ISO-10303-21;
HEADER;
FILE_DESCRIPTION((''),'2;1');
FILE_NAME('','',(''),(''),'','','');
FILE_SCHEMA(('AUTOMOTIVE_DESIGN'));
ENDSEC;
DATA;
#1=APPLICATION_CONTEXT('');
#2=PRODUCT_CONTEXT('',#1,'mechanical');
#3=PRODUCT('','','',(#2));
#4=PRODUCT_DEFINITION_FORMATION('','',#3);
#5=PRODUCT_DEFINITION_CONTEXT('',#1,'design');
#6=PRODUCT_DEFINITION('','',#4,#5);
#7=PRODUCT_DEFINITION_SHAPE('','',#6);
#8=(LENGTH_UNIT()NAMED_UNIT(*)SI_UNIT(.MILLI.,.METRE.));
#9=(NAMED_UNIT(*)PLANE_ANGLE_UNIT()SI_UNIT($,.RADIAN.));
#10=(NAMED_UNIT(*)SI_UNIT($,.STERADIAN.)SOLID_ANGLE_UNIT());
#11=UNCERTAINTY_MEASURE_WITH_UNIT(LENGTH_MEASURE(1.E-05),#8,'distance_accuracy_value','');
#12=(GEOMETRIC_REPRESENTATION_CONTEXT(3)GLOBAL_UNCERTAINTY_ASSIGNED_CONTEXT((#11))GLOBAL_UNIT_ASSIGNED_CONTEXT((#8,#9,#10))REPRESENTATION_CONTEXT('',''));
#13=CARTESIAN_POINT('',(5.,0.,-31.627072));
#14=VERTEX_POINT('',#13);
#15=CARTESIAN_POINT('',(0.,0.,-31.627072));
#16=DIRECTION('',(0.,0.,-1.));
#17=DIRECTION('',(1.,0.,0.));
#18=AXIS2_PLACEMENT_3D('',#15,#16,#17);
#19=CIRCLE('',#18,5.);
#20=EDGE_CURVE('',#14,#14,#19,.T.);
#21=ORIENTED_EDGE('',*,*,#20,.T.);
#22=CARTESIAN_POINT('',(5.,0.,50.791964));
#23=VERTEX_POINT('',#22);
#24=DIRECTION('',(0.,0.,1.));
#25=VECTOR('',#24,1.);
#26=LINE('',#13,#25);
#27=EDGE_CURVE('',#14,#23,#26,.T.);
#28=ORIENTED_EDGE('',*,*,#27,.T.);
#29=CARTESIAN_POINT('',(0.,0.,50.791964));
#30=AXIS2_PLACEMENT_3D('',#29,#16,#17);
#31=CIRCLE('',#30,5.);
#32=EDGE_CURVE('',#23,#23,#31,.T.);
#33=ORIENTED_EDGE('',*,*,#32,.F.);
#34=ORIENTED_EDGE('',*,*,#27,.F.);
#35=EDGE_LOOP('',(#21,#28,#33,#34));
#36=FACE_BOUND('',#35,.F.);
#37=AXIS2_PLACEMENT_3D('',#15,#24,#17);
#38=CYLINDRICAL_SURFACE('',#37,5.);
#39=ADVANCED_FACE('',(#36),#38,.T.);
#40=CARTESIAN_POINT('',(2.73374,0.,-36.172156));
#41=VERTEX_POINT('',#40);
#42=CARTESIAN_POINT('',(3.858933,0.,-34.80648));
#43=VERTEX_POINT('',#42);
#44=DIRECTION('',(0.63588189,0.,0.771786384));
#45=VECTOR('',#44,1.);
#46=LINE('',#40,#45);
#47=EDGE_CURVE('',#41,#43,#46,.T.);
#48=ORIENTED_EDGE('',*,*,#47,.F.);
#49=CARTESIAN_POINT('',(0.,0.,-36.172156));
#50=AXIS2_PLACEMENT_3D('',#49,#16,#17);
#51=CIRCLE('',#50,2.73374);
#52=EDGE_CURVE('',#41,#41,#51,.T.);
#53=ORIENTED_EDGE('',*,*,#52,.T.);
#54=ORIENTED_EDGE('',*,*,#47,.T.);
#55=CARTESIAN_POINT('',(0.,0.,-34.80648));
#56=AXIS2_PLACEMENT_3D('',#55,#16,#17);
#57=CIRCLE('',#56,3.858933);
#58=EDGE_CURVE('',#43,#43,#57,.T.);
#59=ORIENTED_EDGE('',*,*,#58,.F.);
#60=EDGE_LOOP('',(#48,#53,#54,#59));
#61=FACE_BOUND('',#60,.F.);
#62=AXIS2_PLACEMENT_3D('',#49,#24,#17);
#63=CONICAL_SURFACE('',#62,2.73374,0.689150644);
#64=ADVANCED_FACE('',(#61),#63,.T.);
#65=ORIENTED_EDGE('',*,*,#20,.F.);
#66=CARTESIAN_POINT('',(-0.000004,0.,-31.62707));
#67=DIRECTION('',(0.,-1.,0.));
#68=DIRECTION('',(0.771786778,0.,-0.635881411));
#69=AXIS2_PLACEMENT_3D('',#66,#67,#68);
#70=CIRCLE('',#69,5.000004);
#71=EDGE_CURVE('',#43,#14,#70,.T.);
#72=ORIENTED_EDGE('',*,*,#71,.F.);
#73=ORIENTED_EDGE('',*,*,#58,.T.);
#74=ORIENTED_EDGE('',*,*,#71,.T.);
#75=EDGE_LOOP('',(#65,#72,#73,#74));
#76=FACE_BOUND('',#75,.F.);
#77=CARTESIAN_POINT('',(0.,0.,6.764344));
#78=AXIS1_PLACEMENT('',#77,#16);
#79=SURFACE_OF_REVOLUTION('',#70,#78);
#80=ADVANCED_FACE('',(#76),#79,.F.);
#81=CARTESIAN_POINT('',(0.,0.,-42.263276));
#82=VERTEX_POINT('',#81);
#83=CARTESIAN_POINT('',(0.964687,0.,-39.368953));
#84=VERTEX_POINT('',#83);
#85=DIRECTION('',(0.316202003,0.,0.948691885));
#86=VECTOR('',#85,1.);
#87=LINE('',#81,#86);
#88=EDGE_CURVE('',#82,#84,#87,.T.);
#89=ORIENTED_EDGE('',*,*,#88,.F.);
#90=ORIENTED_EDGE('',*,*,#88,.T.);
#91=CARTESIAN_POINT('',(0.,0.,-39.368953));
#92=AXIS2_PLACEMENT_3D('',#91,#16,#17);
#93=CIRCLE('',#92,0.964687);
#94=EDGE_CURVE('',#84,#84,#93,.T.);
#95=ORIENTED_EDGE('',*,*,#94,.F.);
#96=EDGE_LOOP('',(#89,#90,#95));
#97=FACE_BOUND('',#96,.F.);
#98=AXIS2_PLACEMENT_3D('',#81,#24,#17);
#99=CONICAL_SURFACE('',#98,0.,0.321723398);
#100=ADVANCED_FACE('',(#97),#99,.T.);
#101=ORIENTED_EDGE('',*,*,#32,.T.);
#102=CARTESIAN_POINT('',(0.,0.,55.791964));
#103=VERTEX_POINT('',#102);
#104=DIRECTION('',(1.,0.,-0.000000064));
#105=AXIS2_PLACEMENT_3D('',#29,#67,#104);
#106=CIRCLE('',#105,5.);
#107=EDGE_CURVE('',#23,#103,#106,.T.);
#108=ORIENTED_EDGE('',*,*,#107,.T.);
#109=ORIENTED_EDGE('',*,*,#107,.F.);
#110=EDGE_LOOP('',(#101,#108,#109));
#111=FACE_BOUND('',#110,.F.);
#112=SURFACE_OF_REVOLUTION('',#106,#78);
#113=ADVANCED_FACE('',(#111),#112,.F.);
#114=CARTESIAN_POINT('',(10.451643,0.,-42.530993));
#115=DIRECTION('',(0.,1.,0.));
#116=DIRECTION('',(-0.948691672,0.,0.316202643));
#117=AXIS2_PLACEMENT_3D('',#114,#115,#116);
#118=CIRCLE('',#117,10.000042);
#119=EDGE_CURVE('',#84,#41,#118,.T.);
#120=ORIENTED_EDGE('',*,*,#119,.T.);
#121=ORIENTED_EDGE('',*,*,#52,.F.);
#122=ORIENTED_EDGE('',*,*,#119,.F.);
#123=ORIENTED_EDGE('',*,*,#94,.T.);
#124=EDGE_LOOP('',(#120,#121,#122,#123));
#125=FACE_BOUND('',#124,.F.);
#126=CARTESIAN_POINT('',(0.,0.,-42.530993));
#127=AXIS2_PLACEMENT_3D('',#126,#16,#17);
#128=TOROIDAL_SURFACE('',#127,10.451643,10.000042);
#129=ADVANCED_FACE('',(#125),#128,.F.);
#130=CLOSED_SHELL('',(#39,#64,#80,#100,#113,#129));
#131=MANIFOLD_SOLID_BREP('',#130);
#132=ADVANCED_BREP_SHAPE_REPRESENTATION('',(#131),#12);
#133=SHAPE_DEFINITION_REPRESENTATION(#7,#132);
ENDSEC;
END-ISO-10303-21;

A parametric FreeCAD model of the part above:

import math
import FreeCAD as App
import Part
import Sketcher
from FreeCAD import Vector
Q = App.Units.Quantity

doc = App.newDocument("Part")
body = doc.addObject("PartDesign::Body", "Body")

# Sketch on XZ plane
sketch1 = body.newObject("Sketcher::SketchObject", "Sketch")
sketch1.AttachmentSupport = (doc.getObject("XZ_Plane"), [""])
sketch1.MapMode = "FlatFace"
sketch1.addGeometry([
    Part.LineSegment(Vector(5, -31.6, 0), Vector(5, 50.8, 0)),  # 0
    Part.ArcOfCircle(Part.Circle(Vector(0, 50.8, 0), Vector(0, 0, 1), 5), math.radians(0), math.radians(90)),  # 1
    Part.LineSegment(Vector(0, 55.8, 0), Vector(0, -42.3, 0)),  # 2
    Part.LineSegment(Vector(0, -42.3, 0), Vector(1, -39.4, 0)),  # 3
    Part.ArcOfCircle(Part.Circle(Vector(10.5, -42.5, 0), Vector(0, 0, 1), 10), math.radians(141), math.radians(162)),  # 4
    Part.LineSegment(Vector(2.7, -36.2, 0), Vector(3.9, -34.8, 0)),  # 5
    Part.ArcOfCircle(Part.Circle(Vector(0, -31.6, 0), Vector(0, 0, 1), 5), math.radians(-39), math.radians(0)),  # 6
], False)
sketch1.addConstraint([
    Sketcher.Constraint("Tangent", 0, 2, 1, 1),
    Sketcher.Constraint("Coincident", 1, 2, 2, 1),
    Sketcher.Constraint("Coincident", 2, 2, 3, 1),
    Sketcher.Constraint("Tangent", 3, 2, 4, 2),
    Sketcher.Constraint("Tangent", 4, 1, 5, 1),
    Sketcher.Constraint("Tangent", 5, 2, 6, 1),
    Sketcher.Constraint("Tangent", 6, 2, 0, 1),
    Sketcher.Constraint("Vertical", 0),
    Sketcher.Constraint("Vertical", 2),
    Sketcher.Constraint("PointOnObject", 1, 3, -2),
    Sketcher.Constraint("PointOnObject", 1, 2, -2),
    Sketcher.Constraint("Radius", 1, Q("5 mm")),
    Sketcher.Constraint("Radius", 4, Q("10.000042 mm")),
    Sketcher.Constraint("Radius", 6, Q("5.000004 mm")),
    Sketcher.Constraint("Distance", 5, Q("1.7695 mm")),
    Sketcher.Constraint("DistanceY", 2, 2, 2, 1, Q("98.05524 mm")),
    Sketcher.Constraint("DistanceY", 0, 1, 0, 2, Q("82.419036 mm")),
    Sketcher.Constraint("DistanceY", 6, 3, -1, 1, Q("31.62707 mm")),
    Sketcher.Constraint("DistanceX", -1, 1, 4, 1, Q("2.73374 mm")),
])
revolution = body.newObject("PartDesign::Revolution", "Revolution")
revolution.Profile = sketch1
revolution.ReferenceAxis = (sketch1, ["V_Axis"])
revolution.Angle = 360

doc.recompute()
